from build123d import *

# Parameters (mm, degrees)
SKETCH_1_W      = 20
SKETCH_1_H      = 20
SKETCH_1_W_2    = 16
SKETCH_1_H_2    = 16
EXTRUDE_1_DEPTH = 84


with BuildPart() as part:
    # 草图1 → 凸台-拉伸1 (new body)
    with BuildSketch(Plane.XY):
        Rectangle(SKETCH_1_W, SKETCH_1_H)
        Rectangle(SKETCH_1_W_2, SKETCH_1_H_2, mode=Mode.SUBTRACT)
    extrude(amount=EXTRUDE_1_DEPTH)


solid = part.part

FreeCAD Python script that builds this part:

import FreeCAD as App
import Part
import Sketcher

doc = App.newDocument("Part")
body = doc.addObject("PartDesign::Body", "Body")

# Sketch on XY plane
sketch1 = body.newObject("Sketcher::SketchObject", "Sketch")
sketch1.AttachmentSupport = (doc.getObject("XY_Plane"), [""])
sketch1.MapMode = "FlatFace"
sketch1.addGeometry(Part.LineSegment(App.Vector(-10, 10, 0), App.Vector(-10, -10, 0)), False)
sketch1.addGeometry(Part.LineSegment(App.Vector(-10, -10, 0), App.Vector(10, -10, 0)), False)
sketch1.addGeometry(Part.LineSegment(App.Vector(10, -10, 0), App.Vector(10, 10, 0)), False)
sketch1.addGeometry(Part.LineSegment(App.Vector(10, 10, 0), App.Vector(-10, 10, 0)), False)
sketch1.addGeometry(Part.LineSegment(App.Vector(8, -8, 0), App.Vector(-8, -8, 0)), False)
sketch1.addGeometry(Part.LineSegment(App.Vector(-8, -8, 0), App.Vector(-8, 8, 0)), False)
sketch1.addGeometry(Part.LineSegment(App.Vector(-8, 8, 0), App.Vector(8, 8, 0)), False)
sketch1.addGeometry(Part.LineSegment(App.Vector(8, 8, 0), App.Vector(8, -8, 0)), False)
sketch1.addConstraint(Sketcher.Constraint("Coincident", 0, 2, 1, 1))
sketch1.addConstraint(Sketcher.Constraint("Coincident", 1, 2, 2, 1))
sketch1.addConstraint(Sketcher.Constraint("Coincident", 2, 2, 3, 1))
sketch1.addConstraint(Sketcher.Constraint("Coincident", 3, 2, 0, 1))
sketch1.addConstraint(Sketcher.Constraint("Coincident", 4, 2, 5, 1))
sketch1.addConstraint(Sketcher.Constraint("Coincident", 5, 2, 6, 1))
sketch1.addConstraint(Sketcher.Constraint("Coincident", 6, 2, 7, 1))
sketch1.addConstraint(Sketcher.Constraint("Coincident", 7, 2, 4, 1))
sketch1.addConstraint(Sketcher.Constraint("Vertical", 0))
sketch1.addConstraint(Sketcher.Constraint("Horizontal", 1))
sketch1.addConstraint(Sketcher.Constraint("Vertical", 2))
sketch1.addConstraint(Sketcher.Constraint("Horizontal", 3))
sketch1.addConstraint(Sketcher.Constraint("Horizontal", 4))
sketch1.addConstraint(Sketcher.Constraint("Vertical", 5))
sketch1.addConstraint(Sketcher.Constraint("Horizontal", 6))
sketch1.addConstraint(Sketcher.Constraint("Vertical", 7))
sketch1.addConstraint(Sketcher.Constraint("Symmetric", 0, 2, 2, 2, -1, 1))
sketch1.addConstraint(Sketcher.Constraint("Symmetric", 4, 2, 6, 2, -1, 1))
sketch1.addConstraint(Sketcher.Constraint("Equal", 3, 0))
sketch1.addConstraint(Sketcher.Constraint("Equal", 6, 5))
sketch1.addConstraint(Sketcher.Constraint("DistanceX", 1, 1, 1, 2, 20.0))
sketch1.addConstraint(Sketcher.Constraint("DistanceX", 4, 2, 4, 1, 16.0))
pad1 = body.newObject("PartDesign::Pad", "Pad")
pad1.Profile = sketch1
pad1.Length = 84

doc.recompute()
